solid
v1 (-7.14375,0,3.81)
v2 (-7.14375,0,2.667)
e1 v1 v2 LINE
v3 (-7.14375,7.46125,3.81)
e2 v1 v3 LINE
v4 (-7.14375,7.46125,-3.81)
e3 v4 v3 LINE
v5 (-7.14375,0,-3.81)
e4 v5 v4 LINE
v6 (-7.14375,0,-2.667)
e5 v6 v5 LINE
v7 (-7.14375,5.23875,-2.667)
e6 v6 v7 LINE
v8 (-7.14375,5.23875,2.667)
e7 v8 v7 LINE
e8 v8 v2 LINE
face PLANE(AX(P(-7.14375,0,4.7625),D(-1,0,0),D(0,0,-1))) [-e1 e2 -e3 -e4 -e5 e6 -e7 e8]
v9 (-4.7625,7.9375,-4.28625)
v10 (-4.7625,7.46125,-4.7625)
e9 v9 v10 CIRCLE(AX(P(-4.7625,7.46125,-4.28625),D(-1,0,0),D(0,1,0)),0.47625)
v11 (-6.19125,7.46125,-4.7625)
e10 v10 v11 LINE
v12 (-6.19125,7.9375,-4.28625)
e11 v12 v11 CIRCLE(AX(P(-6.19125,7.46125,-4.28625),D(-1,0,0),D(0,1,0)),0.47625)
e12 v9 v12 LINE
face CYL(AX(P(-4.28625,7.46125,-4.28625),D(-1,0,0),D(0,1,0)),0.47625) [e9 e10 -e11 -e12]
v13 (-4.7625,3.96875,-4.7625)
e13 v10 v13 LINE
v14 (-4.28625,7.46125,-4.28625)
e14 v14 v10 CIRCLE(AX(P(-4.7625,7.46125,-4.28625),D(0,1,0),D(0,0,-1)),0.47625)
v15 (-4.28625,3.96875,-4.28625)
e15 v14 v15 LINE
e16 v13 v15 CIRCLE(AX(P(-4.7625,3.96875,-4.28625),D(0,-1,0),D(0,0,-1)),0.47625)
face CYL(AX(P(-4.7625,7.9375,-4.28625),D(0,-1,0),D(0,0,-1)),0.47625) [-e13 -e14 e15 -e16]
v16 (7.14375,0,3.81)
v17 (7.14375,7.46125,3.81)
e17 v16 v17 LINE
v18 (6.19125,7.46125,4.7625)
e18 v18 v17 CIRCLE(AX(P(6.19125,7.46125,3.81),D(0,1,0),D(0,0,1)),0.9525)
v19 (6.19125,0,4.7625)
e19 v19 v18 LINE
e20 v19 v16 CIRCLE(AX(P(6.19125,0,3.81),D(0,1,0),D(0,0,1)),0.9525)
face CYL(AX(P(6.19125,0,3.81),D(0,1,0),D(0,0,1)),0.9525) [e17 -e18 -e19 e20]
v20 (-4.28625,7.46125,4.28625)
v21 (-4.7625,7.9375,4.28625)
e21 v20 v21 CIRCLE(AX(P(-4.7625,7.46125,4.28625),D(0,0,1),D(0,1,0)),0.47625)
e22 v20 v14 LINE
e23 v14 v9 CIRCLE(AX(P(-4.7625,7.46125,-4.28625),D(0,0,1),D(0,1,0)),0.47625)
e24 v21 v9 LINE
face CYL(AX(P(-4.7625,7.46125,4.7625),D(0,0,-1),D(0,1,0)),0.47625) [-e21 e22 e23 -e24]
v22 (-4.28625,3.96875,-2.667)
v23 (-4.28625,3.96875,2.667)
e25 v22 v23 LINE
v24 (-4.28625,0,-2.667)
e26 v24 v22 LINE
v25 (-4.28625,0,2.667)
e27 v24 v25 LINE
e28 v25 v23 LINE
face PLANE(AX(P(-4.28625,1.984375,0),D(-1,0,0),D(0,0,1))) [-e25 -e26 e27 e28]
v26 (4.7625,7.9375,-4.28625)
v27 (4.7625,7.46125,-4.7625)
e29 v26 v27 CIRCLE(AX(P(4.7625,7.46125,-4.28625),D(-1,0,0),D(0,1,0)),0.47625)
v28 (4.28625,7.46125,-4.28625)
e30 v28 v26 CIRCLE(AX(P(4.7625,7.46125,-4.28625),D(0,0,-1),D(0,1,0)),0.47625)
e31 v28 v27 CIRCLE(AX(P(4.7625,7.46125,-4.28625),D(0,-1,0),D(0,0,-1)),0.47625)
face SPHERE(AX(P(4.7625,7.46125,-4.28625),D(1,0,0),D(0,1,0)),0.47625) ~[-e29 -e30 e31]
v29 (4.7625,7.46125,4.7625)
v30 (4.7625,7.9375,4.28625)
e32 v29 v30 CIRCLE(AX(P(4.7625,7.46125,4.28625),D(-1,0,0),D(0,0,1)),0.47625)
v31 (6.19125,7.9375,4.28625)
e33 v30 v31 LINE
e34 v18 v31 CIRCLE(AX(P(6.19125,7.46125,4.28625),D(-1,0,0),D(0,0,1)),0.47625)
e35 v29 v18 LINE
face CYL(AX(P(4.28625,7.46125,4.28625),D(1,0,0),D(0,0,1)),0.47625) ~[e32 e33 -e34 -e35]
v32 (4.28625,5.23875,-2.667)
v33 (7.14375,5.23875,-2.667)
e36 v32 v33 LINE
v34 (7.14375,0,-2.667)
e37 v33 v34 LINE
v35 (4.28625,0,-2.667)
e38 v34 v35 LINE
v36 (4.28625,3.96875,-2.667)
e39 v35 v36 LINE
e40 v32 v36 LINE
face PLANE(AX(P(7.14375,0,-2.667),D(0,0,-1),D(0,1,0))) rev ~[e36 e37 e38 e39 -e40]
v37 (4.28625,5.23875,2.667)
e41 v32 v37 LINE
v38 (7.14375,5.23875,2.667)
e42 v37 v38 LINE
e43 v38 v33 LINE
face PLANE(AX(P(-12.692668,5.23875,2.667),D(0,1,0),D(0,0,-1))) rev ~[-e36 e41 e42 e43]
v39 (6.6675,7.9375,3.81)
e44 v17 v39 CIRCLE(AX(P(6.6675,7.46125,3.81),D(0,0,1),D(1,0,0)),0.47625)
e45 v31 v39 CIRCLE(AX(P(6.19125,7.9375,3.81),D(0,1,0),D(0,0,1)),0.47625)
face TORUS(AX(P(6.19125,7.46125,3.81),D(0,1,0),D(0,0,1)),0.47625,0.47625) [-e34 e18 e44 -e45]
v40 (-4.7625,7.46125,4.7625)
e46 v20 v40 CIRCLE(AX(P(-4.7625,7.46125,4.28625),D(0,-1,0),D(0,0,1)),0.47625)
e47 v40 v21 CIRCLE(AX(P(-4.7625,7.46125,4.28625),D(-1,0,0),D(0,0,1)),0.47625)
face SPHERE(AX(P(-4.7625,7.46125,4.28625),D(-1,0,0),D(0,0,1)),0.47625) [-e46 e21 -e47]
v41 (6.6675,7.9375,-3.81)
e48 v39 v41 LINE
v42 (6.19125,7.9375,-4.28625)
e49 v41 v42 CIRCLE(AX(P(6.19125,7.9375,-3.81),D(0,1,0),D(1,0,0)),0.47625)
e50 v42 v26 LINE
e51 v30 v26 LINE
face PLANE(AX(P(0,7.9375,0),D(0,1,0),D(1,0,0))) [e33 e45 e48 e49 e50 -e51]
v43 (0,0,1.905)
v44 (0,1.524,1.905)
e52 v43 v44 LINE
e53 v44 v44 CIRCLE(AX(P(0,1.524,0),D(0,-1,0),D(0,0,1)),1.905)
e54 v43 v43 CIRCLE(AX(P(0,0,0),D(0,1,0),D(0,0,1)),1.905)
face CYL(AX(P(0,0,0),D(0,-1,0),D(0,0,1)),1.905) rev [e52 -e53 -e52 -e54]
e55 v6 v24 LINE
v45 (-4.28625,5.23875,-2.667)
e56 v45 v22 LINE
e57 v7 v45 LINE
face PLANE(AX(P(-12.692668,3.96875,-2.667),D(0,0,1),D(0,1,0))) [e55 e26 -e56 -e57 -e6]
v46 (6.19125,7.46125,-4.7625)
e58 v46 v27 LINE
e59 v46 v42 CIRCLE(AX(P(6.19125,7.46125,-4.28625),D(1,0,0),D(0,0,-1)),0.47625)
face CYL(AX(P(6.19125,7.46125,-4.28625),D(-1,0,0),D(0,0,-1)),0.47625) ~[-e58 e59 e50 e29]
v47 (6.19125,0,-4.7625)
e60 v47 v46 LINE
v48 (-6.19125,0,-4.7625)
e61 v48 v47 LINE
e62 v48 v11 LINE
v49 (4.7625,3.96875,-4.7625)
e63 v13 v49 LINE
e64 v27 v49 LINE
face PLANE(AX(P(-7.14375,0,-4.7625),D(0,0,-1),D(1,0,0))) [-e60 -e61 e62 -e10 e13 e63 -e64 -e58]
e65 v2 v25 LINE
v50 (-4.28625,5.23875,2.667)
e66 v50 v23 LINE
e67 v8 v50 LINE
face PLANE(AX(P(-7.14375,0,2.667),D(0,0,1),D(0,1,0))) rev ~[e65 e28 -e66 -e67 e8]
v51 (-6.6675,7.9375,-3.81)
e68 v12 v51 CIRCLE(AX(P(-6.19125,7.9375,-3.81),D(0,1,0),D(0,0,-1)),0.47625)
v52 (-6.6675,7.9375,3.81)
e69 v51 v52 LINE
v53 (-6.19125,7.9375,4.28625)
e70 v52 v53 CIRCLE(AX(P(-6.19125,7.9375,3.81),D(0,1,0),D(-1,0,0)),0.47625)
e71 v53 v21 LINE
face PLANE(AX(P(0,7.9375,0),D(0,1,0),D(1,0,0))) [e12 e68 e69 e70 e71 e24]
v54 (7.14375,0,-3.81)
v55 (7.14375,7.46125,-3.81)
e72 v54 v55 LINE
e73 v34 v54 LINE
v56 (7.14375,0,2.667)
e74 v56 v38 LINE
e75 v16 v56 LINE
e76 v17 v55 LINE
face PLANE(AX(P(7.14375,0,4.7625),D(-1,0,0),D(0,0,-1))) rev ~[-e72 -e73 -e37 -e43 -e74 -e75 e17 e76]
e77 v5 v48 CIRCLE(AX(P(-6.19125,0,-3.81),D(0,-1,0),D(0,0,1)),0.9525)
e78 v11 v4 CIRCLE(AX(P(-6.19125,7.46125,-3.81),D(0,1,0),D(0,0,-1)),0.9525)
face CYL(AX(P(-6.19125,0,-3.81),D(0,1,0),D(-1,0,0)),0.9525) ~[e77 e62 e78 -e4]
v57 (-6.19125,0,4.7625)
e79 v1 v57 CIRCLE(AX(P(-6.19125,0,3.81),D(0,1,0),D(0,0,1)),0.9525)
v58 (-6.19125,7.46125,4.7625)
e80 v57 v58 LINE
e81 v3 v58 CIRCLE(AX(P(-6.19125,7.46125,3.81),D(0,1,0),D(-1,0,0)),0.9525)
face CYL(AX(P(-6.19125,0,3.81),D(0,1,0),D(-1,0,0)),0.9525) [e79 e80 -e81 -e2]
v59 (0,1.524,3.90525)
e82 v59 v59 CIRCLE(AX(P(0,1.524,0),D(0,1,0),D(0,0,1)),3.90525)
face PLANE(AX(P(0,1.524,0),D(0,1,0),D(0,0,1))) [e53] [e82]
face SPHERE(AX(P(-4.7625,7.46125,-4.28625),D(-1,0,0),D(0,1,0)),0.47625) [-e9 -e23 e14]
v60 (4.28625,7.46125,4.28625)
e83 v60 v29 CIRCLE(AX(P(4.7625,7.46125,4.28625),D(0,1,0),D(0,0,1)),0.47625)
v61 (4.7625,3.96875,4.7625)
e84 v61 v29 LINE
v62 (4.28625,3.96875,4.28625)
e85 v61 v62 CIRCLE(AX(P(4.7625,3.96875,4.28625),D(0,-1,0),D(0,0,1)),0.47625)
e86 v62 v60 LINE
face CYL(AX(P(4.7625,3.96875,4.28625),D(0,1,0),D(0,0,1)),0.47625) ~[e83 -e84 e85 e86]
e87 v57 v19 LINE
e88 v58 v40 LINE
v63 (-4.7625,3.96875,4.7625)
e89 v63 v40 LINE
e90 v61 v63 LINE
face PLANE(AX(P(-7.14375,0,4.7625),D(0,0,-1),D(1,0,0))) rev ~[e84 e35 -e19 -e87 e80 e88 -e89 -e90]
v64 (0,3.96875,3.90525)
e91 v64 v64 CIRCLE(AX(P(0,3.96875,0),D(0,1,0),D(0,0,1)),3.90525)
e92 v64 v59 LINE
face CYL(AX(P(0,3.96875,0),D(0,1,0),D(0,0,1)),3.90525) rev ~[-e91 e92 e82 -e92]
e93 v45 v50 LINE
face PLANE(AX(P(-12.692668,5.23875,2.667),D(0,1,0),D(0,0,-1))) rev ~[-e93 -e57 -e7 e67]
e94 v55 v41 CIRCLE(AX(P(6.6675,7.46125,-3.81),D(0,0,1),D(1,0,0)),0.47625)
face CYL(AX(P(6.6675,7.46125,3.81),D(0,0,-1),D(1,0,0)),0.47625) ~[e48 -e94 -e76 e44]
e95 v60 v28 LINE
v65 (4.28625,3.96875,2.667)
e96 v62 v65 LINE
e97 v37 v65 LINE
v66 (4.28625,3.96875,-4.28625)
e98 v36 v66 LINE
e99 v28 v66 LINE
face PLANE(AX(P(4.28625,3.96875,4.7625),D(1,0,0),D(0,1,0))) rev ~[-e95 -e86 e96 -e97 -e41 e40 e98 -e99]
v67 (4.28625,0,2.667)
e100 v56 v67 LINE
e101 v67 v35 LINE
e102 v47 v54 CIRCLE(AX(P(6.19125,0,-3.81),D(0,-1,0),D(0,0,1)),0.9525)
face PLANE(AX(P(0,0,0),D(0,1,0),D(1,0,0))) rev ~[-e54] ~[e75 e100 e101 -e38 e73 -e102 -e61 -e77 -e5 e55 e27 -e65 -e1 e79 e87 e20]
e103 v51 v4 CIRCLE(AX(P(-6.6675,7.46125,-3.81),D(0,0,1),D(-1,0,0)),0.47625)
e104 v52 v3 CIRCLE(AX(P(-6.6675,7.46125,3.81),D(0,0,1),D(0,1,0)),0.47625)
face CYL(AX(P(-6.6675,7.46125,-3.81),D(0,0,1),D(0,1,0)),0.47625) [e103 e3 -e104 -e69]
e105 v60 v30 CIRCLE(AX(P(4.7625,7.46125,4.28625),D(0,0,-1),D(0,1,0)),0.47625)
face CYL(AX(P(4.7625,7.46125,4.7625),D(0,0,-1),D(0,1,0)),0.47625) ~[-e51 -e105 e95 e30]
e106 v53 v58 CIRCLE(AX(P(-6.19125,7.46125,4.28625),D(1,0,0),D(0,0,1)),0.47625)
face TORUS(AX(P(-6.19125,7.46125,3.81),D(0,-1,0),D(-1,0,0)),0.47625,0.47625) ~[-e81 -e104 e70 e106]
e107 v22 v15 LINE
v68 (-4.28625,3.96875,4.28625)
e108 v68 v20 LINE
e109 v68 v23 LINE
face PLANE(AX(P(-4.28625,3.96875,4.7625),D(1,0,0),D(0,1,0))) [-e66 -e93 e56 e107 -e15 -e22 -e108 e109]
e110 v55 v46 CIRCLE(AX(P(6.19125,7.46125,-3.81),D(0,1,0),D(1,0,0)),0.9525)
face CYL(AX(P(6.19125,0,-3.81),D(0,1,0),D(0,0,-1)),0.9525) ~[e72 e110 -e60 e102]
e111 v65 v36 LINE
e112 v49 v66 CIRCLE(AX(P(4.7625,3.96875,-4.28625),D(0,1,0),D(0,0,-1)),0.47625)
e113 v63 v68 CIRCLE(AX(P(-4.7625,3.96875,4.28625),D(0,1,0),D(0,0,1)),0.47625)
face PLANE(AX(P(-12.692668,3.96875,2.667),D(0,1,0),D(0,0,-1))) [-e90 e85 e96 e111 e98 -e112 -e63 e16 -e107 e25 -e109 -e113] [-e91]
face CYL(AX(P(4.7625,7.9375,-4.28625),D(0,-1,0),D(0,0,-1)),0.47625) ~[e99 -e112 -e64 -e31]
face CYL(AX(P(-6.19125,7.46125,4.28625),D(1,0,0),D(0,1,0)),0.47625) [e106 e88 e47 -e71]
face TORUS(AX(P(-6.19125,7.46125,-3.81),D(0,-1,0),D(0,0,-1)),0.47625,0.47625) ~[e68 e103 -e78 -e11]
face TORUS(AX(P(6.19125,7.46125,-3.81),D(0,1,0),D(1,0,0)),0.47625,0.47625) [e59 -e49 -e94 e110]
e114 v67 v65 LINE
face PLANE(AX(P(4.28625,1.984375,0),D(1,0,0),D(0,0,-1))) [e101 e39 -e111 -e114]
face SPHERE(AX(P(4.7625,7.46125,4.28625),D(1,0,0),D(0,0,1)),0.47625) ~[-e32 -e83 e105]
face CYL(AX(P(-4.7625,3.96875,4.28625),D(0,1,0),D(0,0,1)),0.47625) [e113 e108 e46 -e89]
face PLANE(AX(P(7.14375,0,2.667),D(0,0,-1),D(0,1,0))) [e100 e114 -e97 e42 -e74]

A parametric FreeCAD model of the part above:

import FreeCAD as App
import Part
import Sketcher
from FreeCAD import Vector
Q = App.Units.Quantity


def edges_at(feature, points):
    """Names of the edges that pass closest to the given points."""
    edges = feature.Shape.Edges
    near = lambda p: min(range(len(edges)), key=lambda i: edges[i].distToShape(Part.Vertex(*p))[0])
    return sorted({f"Edge{near(p) + 1}" for p in points})


def add_polygon(sketch, points):
    """Adds a closed chain of lines whose ends are joined by coincident constraints."""
    first, n = sketch.GeometryCount, len(points)
    for a, b in zip(points, points[1:] + points[:1]):
        sketch.addGeometry(Part.LineSegment(App.Vector(*a, 0), App.Vector(*b, 0)), False)
    for i in range(n):
        sketch.addConstraint(Sketcher.Constraint("Coincident", first + i, 2, first + (i + 1) % n, 1))

doc = App.newDocument("Part")
params = doc.addObject("Spreadsheet::Sheet", "Params")
for row, (alias, value) in enumerate([
    ("sketch1_diameter", "0.15 in"),
    ("sketch1_width", "0.5625 in"),
    ("sketch1_height", "0.375 in"),
    ("pad1_length", "0.3125 in"),
    ("sketch2_height", "0.15625 in"),
    ("sketch3_width", "0.05 in"),
    ("sketch3_height", "0.21 in"),
    ("sketch4_height", "0.21 in"),
    ("sketch4_width", "0.15625 in"),
    ("pocket3_length", "0.1125 in"),
    ("sketch5_height", "0.21 in"),
    ("sketch5_width", "0.15625 in"),
    ("pocket4_length", "0.1125 in"),
    ("pocket5_length", "2.44475 mm"),
    ("fillet_radius", "0.0375 in"),
    ("fillet2_radius", "0.47625 mm"),
], start=1):
    params.set(f"A{row}", alias)
    params.set(f"B{row}", "=" + value)
    params.setAlias(f"B{row}", alias)

body = doc.addObject("PartDesign::Body", "Body")

sketch1 = body.newObject("Sketcher::SketchObject", "Sketch")
sketch1.AttachmentSupport = (doc.getObject("XZ_Plane"), [""])
sketch1.MapMode = "FlatFace"
add_polygon(sketch1, [(-7.1, -4.8), (-7.1, 4.8), (7.1, 4.8), (7.1, -4.8)])
sketch1.addGeometry(Part.Circle(Vector(0, 0, 0), Vector(0, 0, 1), 1.9), False)
sketch1.addConstraint([
    Sketcher.Constraint("Vertical", 0),
    Sketcher.Constraint("Horizontal", 1),
    Sketcher.Constraint("Vertical", 2),
    Sketcher.Constraint("Horizontal", 3),
    Sketcher.Constraint("Coincident", 4, 3, -1, 1),
    Sketcher.Constraint("Symmetric", 0, 2, 2, 2, -1, 1),
    Sketcher.Constraint("Diameter", 4, Q("0.15 in")),
    Sketcher.Constraint("DistanceX", 1, 1, 1, 2, Q("0.5625 in")),
    Sketcher.Constraint("DistanceY", 0, 1, 0, 2, Q("0.375 in")),
])
sketch1.setExpression("Constraints[10]", "Params.sketch1_diameter")
sketch1.setExpression("Constraints[11]", "Params.sketch1_width")
sketch1.setExpression("Constraints[12]", "Params.sketch1_height")
pad1 = body.newObject("PartDesign::Pad", "Pad")
pad1.Profile = sketch1
pad1.setExpression("Length", "Params.pad1_length")
pad1.Reversed = True

sketch2 = body.newObject("Sketcher::SketchObject", "Sketch001")
sketch2.AttachmentSupport = (doc.getObject("XY_Plane"), [""])
sketch2.MapMode = "FlatFace"
sketch2.AttachmentOffset = App.Placement(Vector(0, 0, 0.1875 * 25.4), App.Rotation())
add_polygon(sketch2, [(-4.3, 7.9), (-4.3, 4), (4.3, 4), (4.3, 7.9)])
sketch2.addConstraint([
    Sketcher.Constraint("Vertical", 0),
    Sketcher.Constraint("Horizontal", 1),
    Sketcher.Constraint("Vertical", 2),
    Sketcher.Constraint("Horizontal", 3),
    Sketcher.Constraint("DistanceY", 0, 2, 0, 1, Q("0.15625 in")),
    Sketcher.Constraint("DistanceX", 1, 1, 1, 2, Q("0.3375 in")),
    Sketcher.Constraint("DistanceY", -1, 1, 0, 2, Q("0.15625 in")),
    Sketcher.Constraint("DistanceX", 0, 2, -1, 1, 4.28625),
])
sketch2.setExpression("Constraints[8]", "Params.sketch2_height")
pocket1 = body.newObject("PartDesign::Pocket", "Pocket")
pocket1.Profile = sketch2
pocket1.Type = "ThroughAll"

sketch3 = body.newObject("Sketcher::SketchObject", "Sketch002")
sketch3.AttachmentSupport = (doc.getObject("YZ_Plane"), [""])
sketch3.MapMode = "FlatFace"
add_polygon(sketch3, [(5.2, 2.7), (4, 2.7), (4, -2.7), (5.2, -2.7)])
sketch3.addConstraint([
    Sketcher.Constraint("Horizontal", 0),
    Sketcher.Constraint("Vertical", 1),
    Sketcher.Constraint("Horizontal", 2),
    Sketcher.Constraint("Vertical", 3),
    Sketcher.Constraint("DistanceX", 0, 2, 0, 1, Q("0.05 in")),
    Sketcher.Constraint("DistanceY", 1, 2, 1, 1, Q("0.21 in")),
    Sketcher.Constraint("DistanceX", -1, 1, 0, 2, Q("0.15625 in")),
    Sketcher.Constraint("DistanceY", -1, 1, 0, 2, Q("0.105 in")),
])
sketch3.setExpression("Constraints[8]", "Params.sketch3_width")
sketch3.setExpression("Constraints[9]", "Params.sketch3_height")
pocket2 = body.newObject("PartDesign::Pocket", "Pocket001")
pocket2.Profile = sketch3
pocket2.Type = "ThroughAll"
pocket2.Midplane = True

sketch4 = body.newObject("Sketcher::SketchObject", "Sketch003")
sketch4.AttachmentSupport = (doc.getObject("YZ_Plane"), [""])
sketch4.MapMode = "FlatFace"
sketch4.AttachmentOffset = App.Placement(Vector(0, 0, 0.28125 * 25.4), App.Rotation())
add_polygon(sketch4, [(4, 2.7), (0, 2.7), (0, -2.7), (4, -2.7)])
sketch4.addConstraint([
    Sketcher.Constraint("Horizontal", 0),
    Sketcher.Constraint("Vertical", 1),
    Sketcher.Constraint("Horizontal", 2),
    Sketcher.Constraint("Vertical", 3),
    Sketcher.Constraint("Symmetric", 0, 2, 1, 2, -1, 1),
    Sketcher.Constraint("DistanceY", 1, 2, 1, 1, Q("0.21 in")),
    Sketcher.Constraint("DistanceX", 0, 2, 0, 1, Q("0.15625 in")),
])
sketch4.setExpression("Constraints[9]", "Params.sketch4_height")
sketch4.setExpression("Constraints[10]", "Params.sketch4_width")
pocket3 = body.newObject("PartDesign::Pocket", "Pocket002")
pocket3.Profile = sketch4
pocket3.setExpression("Length", "Params.pocket3_length")

sketch5 = body.newObject("Sketcher::SketchObject", "Sketch004")
sketch5.AttachmentSupport = (doc.getObject("YZ_Plane"), [""])
sketch5.MapMode = "FlatFace"
sketch5.AttachmentOffset = App.Placement(Vector(0, 0, -0.28125 * 25.4), App.Rotation())
add_polygon(sketch5, [(4, -2.7), (0, -2.7), (0, 2.7), (4, 2.7)])
sketch5.addConstraint([
    Sketcher.Constraint("Horizontal", 0),
    Sketcher.Constraint("Vertical", 1),
    Sketcher.Constraint("Horizontal", 2),
    Sketcher.Constraint("Vertical", 3),
    Sketcher.Constraint("Symmetric", 0, 2, 1, 2, -1, 1),
    Sketcher.Constraint("DistanceY", 1, 1, 1, 2, Q("0.21 in")),
    Sketcher.Constraint("DistanceX", 0, 2, 0, 1, Q("0.15625 in")),
])
sketch5.setExpression("Constraints[9]", "Params.sketch5_height")
sketch5.setExpression("Constraints[10]", "Params.sketch5_width")
pocket4 = body.newObject("PartDesign::Pocket", "Pocket003")
pocket4.Profile = sketch5
pocket4.setExpression("Length", "Params.pocket4_length")
pocket4.Reversed = True

sketch6 = body.newObject("Sketcher::SketchObject", "Sketch005")
sketch6.AttachmentSupport = (doc.getObject("XZ_Plane"), [""])
sketch6.MapMode = "FlatFace"
sketch6.AttachmentOffset = App.Placement(Vector(0, 0, -0.15625 * 25.4), App.Rotation())
sketch6.addGeometry(Part.Circle(Vector(0, 0, 0), Vector(0, 0, 1), 3.9), False)
sketch6.addConstraint([
    Sketcher.Constraint("Coincident", 0, 3, -1, 1),
    Sketcher.Constraint("Diameter", 0, Q("0.3075 in")),
])
pocket5 = body.newObject("PartDesign::Pocket", "Pocket004")
pocket5.Profile = sketch6
pocket5.setExpression("Length", "Params.pocket5_length")
pocket5.Reversed = True
doc.recompute()

fillet = body.newObject("PartDesign::Fillet", "Fillet")
fillet.Base = (pocket5, edges_at(pocket5, [
    (-7.144, 3.969, 4.763),
    (7.144, 3.969, 4.763),
    (-7.144, 3.969, -4.763),
    (7.144, 3.969, -4.763),
]))
fillet.setExpression("Radius", "Params.fillet_radius")
doc.recompute()

fillet2 = body.newObject("PartDesign::Fillet", "Fillet001")
fillet2.Base = (fillet, edges_at(fillet, [
    (5.239, 7.938, 4.763),
    (-5.239, 7.938, 4.763),
    (4.286, 5.953, 4.763),
    (-4.286, 5.953, 4.763),
    (6.865, 7.938, 4.484),
    (-6.865, 7.938, 4.484),
    (7.144, 7.938, 0),
    (6.865, 7.938, -4.484),
    (5.239, 7.938, -4.763),
    (4.286, 7.938, 0),
    (-5.239, 7.938, -4.763),
    (-6.865, 7.938, -4.484),
    (-4.286, 7.938, 0),
    (-7.144, 7.938, 0),
    (4.286, 5.953, -4.763),
    (-4.286, 5.953, -4.763),
]))
fillet2.setExpression("Radius", "Params.fillet2_radius")

doc.recompute()
